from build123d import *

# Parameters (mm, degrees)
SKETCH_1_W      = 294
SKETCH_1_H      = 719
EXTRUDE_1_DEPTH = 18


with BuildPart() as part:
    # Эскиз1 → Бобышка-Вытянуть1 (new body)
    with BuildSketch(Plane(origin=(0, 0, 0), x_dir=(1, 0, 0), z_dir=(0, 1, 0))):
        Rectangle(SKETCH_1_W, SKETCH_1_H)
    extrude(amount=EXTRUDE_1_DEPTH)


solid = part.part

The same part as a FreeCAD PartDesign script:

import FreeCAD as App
import Part
import Sketcher


def add_polygon(sketch, points):
    """Adds a closed chain of lines whose ends are joined by coincident constraints."""
    first, n = sketch.GeometryCount, len(points)
    for a, b in zip(points, points[1:] + points[:1]):
        sketch.addGeometry(Part.LineSegment(App.Vector(*a, 0), App.Vector(*b, 0)), False)
    for i in range(n):
        sketch.addConstraint(Sketcher.Constraint("Coincident", first + i, 2, first + (i + 1) % n, 1))

doc = App.newDocument("Part")
body = doc.addObject("PartDesign::Body", "Body")

# Sketch on XZ plane
sketch1 = body.newObject("Sketcher::SketchObject", "Sketch")
sketch1.AttachmentSupport = (doc.getObject("XZ_Plane"), [""])
sketch1.MapMode = "FlatFace"
add_polygon(sketch1, [(-147, -360), (-147, 360), (147, 360), (147, -360)])  # lines 0-3
sketch1.addConstraint(Sketcher.Constraint("Vertical", 0))
sketch1.addConstraint(Sketcher.Constraint("Horizontal", 1))
sketch1.addConstraint(Sketcher.Constraint("Vertical", 2))
sketch1.addConstraint(Sketcher.Constraint("Horizontal", 3))
sketch1.addConstraint(Sketcher.Constraint("Symmetric", 0, 2, 2, 2, -1, 1))
sketch1.addConstraint(Sketcher.Constraint("DistanceX", 1, 1, 1, 2, 294.0))
sketch1.addConstraint(Sketcher.Constraint("DistanceY", 0, 1, 0, 2, 719.0))
pad1 = body.newObject("PartDesign::Pad", "Pad")
pad1.Profile = sketch1
pad1.Length = 18
pad1.Reversed = True

doc.recompute()
